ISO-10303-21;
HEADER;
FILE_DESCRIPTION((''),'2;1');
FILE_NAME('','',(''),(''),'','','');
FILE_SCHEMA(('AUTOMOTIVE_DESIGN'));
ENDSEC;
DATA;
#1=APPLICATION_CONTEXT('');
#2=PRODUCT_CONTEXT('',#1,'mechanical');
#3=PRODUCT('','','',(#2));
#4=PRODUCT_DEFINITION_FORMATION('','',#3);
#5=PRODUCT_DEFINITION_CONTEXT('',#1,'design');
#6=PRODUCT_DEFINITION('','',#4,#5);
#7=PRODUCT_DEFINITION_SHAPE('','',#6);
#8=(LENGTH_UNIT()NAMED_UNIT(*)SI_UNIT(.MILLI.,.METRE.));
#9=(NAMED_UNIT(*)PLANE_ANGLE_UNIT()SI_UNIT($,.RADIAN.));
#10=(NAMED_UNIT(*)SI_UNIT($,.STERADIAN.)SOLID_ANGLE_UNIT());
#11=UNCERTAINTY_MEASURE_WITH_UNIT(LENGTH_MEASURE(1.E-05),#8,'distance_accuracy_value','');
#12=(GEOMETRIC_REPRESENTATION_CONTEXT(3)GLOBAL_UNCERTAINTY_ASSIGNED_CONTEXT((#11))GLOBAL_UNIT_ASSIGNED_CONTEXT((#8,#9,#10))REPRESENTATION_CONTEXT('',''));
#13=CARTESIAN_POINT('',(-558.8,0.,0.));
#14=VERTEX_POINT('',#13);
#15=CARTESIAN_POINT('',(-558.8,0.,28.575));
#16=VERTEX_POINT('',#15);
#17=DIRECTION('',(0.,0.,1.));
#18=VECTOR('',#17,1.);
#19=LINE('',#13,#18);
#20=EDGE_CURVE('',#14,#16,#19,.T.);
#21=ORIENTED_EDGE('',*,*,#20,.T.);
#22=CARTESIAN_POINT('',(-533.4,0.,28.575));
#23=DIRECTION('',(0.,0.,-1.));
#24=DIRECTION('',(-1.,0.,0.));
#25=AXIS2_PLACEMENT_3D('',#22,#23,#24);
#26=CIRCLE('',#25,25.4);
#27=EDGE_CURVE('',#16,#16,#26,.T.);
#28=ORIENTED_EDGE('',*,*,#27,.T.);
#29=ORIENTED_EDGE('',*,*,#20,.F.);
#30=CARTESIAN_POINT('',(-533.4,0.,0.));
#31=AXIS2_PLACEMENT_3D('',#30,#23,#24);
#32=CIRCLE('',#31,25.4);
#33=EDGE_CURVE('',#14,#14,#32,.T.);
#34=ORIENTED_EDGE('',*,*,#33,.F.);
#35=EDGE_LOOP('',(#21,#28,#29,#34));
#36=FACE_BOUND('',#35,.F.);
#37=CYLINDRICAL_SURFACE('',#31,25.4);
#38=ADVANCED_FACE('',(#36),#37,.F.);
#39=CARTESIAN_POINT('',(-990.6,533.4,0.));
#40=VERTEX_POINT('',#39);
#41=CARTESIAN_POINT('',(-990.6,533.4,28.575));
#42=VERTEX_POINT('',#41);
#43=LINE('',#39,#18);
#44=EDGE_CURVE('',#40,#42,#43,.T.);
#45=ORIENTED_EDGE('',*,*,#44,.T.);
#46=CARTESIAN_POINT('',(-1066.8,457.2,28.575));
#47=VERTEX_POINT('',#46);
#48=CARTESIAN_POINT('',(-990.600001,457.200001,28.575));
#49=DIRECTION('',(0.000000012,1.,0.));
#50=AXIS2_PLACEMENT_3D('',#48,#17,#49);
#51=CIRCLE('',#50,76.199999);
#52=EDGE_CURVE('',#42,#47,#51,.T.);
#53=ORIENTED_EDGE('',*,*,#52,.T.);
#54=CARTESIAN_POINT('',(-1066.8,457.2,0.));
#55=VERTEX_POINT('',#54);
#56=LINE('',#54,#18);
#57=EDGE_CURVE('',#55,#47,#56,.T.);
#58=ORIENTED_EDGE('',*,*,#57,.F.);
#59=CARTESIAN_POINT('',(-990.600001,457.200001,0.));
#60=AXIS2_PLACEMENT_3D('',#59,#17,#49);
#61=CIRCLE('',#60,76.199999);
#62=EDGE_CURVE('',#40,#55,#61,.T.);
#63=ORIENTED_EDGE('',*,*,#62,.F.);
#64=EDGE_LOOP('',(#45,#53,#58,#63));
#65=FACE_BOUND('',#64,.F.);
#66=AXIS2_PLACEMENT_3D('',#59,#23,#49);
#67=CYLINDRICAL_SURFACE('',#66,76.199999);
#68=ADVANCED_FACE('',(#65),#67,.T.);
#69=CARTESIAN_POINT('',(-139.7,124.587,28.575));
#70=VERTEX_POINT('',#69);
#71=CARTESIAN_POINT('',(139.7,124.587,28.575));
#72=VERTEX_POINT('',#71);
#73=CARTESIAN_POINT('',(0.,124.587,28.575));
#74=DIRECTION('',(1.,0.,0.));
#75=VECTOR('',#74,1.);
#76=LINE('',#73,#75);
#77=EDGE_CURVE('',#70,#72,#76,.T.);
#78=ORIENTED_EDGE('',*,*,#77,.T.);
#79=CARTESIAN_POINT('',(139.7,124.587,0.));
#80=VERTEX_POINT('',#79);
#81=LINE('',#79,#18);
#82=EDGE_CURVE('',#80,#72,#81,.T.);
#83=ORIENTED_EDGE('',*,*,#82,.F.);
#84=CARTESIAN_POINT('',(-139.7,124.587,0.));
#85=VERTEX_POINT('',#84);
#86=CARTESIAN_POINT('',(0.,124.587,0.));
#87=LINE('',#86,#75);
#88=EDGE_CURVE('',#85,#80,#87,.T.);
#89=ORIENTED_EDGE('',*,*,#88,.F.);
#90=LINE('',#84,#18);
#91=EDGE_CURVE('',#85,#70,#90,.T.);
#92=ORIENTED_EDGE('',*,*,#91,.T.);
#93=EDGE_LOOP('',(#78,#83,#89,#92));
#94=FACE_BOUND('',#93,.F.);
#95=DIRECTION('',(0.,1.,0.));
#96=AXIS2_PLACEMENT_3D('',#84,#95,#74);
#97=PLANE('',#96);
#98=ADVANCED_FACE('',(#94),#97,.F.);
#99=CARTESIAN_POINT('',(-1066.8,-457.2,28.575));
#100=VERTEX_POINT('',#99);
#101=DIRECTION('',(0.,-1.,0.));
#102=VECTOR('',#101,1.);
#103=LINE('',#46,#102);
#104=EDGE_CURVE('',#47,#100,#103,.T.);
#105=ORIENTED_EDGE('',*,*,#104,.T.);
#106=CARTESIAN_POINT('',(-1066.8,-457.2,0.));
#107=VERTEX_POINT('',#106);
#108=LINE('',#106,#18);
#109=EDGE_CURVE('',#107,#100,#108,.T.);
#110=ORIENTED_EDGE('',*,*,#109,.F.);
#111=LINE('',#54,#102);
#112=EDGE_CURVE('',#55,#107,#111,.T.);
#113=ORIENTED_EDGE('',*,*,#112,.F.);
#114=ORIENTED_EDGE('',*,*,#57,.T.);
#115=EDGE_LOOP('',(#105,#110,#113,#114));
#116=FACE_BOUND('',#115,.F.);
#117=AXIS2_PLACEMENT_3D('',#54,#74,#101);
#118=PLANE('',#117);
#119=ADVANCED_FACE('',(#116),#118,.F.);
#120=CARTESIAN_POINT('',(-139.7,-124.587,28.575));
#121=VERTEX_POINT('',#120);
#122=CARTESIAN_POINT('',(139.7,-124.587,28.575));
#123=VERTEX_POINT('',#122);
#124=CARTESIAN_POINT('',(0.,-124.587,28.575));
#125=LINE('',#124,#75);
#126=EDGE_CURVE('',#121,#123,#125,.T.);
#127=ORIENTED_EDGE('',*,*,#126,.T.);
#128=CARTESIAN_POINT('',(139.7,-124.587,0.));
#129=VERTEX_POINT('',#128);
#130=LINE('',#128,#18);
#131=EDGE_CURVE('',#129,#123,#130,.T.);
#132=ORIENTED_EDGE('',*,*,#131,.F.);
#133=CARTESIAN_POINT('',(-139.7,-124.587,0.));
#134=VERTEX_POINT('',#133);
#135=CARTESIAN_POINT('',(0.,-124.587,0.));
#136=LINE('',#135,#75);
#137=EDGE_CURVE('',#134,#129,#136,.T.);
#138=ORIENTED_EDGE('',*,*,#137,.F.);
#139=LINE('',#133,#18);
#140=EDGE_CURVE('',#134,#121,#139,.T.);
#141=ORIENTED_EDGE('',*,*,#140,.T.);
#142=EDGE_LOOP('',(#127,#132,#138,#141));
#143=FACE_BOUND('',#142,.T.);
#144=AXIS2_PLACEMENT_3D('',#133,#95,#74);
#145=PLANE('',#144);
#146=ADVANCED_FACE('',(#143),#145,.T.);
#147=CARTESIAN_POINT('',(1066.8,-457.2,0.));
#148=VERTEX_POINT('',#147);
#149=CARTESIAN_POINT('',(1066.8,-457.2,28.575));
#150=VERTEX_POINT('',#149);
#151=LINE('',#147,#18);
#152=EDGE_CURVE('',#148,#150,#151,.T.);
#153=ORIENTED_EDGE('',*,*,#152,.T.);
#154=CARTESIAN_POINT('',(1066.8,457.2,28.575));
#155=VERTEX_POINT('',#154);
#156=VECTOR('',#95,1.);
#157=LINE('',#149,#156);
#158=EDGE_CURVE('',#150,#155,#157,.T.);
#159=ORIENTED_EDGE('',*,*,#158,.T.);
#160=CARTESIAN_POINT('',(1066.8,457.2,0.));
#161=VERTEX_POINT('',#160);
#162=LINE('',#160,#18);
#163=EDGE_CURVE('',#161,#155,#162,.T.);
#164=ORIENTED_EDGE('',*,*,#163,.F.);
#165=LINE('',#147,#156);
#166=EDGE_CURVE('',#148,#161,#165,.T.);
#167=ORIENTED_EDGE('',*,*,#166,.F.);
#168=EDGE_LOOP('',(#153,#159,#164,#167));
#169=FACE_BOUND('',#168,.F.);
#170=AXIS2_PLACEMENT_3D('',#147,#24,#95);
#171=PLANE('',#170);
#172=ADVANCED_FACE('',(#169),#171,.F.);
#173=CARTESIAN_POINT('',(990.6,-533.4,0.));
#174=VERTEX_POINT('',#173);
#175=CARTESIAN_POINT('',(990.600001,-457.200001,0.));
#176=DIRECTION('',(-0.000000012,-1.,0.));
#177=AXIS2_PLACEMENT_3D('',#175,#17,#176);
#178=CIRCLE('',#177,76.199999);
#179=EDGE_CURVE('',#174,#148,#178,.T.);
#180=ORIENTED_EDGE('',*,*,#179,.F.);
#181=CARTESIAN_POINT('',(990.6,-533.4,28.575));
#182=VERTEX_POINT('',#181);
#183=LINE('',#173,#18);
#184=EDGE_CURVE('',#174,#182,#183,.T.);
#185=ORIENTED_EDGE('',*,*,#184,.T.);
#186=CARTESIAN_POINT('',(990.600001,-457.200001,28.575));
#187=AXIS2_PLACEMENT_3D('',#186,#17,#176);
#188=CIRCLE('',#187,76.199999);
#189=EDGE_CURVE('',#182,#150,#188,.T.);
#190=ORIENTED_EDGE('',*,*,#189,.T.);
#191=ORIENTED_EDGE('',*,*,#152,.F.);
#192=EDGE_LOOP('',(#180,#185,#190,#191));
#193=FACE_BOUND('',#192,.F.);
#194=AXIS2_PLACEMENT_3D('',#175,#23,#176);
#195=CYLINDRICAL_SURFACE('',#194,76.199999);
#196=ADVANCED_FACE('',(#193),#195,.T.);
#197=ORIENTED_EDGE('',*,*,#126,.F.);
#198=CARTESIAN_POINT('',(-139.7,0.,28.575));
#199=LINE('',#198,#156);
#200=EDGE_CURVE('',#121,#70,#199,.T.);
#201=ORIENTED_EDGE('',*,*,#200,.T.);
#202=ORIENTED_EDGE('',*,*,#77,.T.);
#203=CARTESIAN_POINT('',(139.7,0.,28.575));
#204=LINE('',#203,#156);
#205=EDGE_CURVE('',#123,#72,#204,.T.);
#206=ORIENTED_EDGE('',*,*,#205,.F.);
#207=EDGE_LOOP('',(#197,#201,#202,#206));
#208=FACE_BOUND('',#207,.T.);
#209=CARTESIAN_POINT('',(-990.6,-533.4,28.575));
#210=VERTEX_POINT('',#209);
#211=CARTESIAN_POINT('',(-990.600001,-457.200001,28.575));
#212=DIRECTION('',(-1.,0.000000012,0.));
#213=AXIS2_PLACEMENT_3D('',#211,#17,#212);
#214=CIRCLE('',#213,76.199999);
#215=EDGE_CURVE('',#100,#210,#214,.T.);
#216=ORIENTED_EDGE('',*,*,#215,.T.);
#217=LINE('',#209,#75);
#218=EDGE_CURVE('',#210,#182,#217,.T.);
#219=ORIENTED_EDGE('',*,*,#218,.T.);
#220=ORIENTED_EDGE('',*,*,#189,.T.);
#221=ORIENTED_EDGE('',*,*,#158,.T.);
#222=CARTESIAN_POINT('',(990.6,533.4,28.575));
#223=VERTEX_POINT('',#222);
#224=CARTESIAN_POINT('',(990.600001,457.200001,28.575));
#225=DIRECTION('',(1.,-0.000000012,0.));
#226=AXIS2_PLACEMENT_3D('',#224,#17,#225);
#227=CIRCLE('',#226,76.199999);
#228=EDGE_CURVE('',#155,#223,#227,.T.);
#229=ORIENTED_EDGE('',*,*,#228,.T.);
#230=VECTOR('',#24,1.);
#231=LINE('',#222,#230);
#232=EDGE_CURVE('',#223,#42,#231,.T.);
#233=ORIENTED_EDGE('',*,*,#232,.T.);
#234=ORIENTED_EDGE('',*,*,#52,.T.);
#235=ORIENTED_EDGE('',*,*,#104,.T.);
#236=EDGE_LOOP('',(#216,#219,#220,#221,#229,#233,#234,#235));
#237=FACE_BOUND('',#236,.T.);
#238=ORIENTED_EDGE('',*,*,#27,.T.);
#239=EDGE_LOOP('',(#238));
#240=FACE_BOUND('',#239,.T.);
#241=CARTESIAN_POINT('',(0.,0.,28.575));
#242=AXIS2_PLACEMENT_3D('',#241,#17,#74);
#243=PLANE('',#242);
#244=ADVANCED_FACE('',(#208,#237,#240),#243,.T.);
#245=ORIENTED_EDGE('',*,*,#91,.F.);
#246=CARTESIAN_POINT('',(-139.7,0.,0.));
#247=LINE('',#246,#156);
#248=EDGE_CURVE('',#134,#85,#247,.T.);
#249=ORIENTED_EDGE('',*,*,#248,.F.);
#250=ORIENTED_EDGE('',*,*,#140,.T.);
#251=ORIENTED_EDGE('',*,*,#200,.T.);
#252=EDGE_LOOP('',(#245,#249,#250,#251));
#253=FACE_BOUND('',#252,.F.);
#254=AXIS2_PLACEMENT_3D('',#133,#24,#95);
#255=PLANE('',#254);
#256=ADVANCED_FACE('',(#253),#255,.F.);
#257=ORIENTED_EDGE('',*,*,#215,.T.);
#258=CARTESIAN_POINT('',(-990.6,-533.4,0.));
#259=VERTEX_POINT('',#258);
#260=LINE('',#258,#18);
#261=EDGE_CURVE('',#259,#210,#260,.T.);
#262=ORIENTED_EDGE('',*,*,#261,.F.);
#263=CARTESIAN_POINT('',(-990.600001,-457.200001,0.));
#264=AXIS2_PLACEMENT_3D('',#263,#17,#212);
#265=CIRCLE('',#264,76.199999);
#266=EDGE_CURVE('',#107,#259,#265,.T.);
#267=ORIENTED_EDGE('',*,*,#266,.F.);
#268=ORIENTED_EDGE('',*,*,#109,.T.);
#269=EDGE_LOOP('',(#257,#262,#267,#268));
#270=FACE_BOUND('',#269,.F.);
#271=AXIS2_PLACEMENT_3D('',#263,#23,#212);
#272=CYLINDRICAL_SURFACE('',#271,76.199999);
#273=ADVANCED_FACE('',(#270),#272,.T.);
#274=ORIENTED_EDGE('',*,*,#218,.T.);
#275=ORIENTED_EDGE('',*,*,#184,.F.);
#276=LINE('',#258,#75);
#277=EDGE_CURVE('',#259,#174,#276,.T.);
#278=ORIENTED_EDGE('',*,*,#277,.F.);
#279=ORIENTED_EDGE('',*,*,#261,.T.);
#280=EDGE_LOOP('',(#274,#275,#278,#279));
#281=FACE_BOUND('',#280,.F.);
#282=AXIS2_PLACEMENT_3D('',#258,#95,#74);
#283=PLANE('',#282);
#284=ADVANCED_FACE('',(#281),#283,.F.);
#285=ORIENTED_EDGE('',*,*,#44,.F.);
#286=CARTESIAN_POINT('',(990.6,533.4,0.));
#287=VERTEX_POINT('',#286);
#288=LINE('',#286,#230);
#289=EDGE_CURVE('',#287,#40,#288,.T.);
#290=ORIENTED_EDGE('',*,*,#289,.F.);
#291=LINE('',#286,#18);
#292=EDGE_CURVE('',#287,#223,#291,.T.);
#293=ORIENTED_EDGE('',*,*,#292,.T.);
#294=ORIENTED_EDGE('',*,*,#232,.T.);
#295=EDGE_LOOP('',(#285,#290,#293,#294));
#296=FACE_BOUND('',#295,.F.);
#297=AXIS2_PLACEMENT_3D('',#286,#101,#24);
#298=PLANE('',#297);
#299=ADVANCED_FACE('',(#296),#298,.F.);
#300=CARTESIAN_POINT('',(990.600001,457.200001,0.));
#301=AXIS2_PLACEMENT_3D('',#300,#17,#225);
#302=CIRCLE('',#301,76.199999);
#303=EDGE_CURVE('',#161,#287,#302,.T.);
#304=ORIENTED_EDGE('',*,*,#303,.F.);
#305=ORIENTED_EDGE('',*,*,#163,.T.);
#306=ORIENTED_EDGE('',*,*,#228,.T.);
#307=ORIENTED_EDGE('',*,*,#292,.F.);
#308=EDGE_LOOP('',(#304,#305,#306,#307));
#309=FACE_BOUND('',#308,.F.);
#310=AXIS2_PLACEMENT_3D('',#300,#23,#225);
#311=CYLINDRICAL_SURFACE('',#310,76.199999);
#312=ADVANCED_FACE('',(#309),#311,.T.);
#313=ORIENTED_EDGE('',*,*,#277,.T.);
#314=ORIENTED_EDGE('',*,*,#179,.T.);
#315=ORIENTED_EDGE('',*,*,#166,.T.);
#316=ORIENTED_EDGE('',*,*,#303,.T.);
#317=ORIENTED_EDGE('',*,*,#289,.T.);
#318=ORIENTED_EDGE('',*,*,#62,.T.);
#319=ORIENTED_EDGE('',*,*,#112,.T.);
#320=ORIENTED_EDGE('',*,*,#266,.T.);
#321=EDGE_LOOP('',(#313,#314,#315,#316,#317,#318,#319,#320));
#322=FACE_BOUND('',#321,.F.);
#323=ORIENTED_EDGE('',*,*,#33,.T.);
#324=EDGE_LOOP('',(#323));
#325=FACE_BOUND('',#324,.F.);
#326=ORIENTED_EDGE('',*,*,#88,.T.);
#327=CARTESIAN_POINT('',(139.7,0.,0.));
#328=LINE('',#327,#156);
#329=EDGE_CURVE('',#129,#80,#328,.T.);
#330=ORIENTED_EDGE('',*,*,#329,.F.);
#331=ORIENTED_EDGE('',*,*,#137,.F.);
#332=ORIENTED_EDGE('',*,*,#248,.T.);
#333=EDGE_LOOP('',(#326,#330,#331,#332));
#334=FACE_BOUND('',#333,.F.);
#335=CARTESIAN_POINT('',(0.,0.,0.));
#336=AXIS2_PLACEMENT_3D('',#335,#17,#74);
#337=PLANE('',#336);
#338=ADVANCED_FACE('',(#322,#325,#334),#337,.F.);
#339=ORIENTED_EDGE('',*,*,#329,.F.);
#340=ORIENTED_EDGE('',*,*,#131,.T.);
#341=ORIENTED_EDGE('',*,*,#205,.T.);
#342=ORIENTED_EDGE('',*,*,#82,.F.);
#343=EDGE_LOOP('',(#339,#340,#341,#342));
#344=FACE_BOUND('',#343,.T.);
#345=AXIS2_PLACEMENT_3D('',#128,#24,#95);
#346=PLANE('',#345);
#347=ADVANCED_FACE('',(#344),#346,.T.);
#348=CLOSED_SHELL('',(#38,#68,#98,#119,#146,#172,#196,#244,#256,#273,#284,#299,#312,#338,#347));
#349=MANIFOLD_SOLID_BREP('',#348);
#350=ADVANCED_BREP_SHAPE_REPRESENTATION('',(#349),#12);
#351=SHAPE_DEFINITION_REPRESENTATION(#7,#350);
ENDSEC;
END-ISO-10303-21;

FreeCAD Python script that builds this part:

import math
import FreeCAD as App
import Part
import Sketcher
Q = App.Units.Quantity


def add_polygon(sketch, points):
    """Adds a closed chain of lines whose ends are joined by coincident constraints."""
    first, n = sketch.GeometryCount, len(points)
    for a, b in zip(points, points[1:] + points[:1]):
        sketch.addGeometry(Part.LineSegment(App.Vector(*a, 0), App.Vector(*b, 0)), False)
    for i in range(n):
        sketch.addConstraint(Sketcher.Constraint("Coincident", first + i, 2, first + (i + 1) % n, 1))

doc = App.newDocument("Part")
body = doc.addObject("PartDesign::Body", "Body")

# Sketch on XY plane
sketch1 = body.newObject("Sketcher::SketchObject", "Sketch")
sketch1.AttachmentSupport = (doc.getObject("XY_Plane"), [""])
sketch1.MapMode = "FlatFace"
sketch1.addGeometry(Part.LineSegment(App.Vector(990.6, 533.4, 0), App.Vector(-990.6, 533.4, 0)), False)  # 0
sketch1.addGeometry(Part.ArcOfCircle(Part.Circle(App.Vector(-990.600001, 457.200001, 0), App.Vector(0, 0, 1), 76.199999), math.radians(89.999999), math.radians(180.000001)), False)  # 1
sketch1.addGeometry(Part.LineSegment(App.Vector(-1066.8, 457.2, 0), App.Vector(-1066.8, -457.2, 0)), False)  # 2
sketch1.addGeometry(Part.ArcOfCircle(Part.Circle(App.Vector(-990.600001, -457.200001, 0), App.Vector(0, 0, 1), 76.199999), math.radians(179.999999), math.radians(270.000001)), False)  # 3
sketch1.addGeometry(Part.LineSegment(App.Vector(-990.6, -533.4, 0), App.Vector(990.6, -533.4, 0)), False)  # 4
sketch1.addGeometry(Part.ArcOfCircle(Part.Circle(App.Vector(990.600001, -457.200001, 0), App.Vector(0, 0, 1), 76.199999), math.radians(-90.000001), math.radians(0.000001)), False)  # 5
sketch1.addGeometry(Part.LineSegment(App.Vector(1066.8, -457.2, 0), App.Vector(1066.8, 457.2, 0)), False)  # 6
sketch1.addGeometry(Part.ArcOfCircle(Part.Circle(App.Vector(990.600001, 457.200001, 0), App.Vector(0, 0, 1), 76.199999), math.radians(-0.000001), math.radians(90.000001)), False)  # 7
sketch1.addGeometry(Part.Circle(App.Vector(-533.4, 0, 0), App.Vector(0, 0, 1), 25.4), False)  # 8
add_polygon(sketch1, [(139.7, -124.587), (-139.7, -124.587), (-139.7, 124.587), (139.7, 124.587)])  # lines 9-12
sketch1.addConstraint([
    Sketcher.Constraint("Tangent", 0, 2, 1, 1),
    Sketcher.Constraint("Tangent", 1, 2, 2, 1),
    Sketcher.Constraint("Tangent", 2, 2, 3, 1),
    Sketcher.Constraint("Tangent", 3, 2, 4, 1),
    Sketcher.Constraint("Tangent", 4, 2, 5, 1),
    Sketcher.Constraint("Tangent", 5, 2, 6, 1),
    Sketcher.Constraint("Tangent", 6, 2, 7, 1),
    Sketcher.Constraint("Tangent", 7, 2, 0, 1),
    Sketcher.Constraint("Horizontal", 0),
    Sketcher.Constraint("Vertical", 2),
    Sketcher.Constraint("Horizontal", 4),
    Sketcher.Constraint("Vertical", 6),
    Sketcher.Constraint("Horizontal", 9),
    Sketcher.Constraint("Vertical", 10),
    Sketcher.Constraint("Horizontal", 11),
    Sketcher.Constraint("Vertical", 12),
    Sketcher.Constraint("Equal", 1, 3),
    Sketcher.Constraint("Equal", 3, 5),
    Sketcher.Constraint("Equal", 5, 7),
    Sketcher.Constraint("Symmetric", 1, 3, 5, 3, -1, 1),
    Sketcher.Constraint("Symmetric", 9, 2, 11, 2, -1, 1),
    Sketcher.Constraint("PointOnObject", 8, 3, -1),
    Sketcher.Constraint("Diameter", 8, Q("2 in")),
    Sketcher.Constraint("Radius", 1, Q("3 in")),
    Sketcher.Constraint("DistanceX", 0, 2, 0, 1, Q("78 in")),
    Sketcher.Constraint("DistanceX", 9, 2, 9, 1, Q("11 in")),
    Sketcher.Constraint("DistanceY", 2, 2, 2, 1, Q("36 in")),
    Sketcher.Constraint("DistanceX", 8, 3, -1, 1, Q("21 in")),
    Sketcher.Constraint("DistanceY", 10, 1, 10, 2, Q("9.81 in")),
])
pad1 = body.newObject("PartDesign::Pad", "Pad")
pad1.Profile = sketch1
pad1.Length = Q("1.125 in")

doc.recompute()
